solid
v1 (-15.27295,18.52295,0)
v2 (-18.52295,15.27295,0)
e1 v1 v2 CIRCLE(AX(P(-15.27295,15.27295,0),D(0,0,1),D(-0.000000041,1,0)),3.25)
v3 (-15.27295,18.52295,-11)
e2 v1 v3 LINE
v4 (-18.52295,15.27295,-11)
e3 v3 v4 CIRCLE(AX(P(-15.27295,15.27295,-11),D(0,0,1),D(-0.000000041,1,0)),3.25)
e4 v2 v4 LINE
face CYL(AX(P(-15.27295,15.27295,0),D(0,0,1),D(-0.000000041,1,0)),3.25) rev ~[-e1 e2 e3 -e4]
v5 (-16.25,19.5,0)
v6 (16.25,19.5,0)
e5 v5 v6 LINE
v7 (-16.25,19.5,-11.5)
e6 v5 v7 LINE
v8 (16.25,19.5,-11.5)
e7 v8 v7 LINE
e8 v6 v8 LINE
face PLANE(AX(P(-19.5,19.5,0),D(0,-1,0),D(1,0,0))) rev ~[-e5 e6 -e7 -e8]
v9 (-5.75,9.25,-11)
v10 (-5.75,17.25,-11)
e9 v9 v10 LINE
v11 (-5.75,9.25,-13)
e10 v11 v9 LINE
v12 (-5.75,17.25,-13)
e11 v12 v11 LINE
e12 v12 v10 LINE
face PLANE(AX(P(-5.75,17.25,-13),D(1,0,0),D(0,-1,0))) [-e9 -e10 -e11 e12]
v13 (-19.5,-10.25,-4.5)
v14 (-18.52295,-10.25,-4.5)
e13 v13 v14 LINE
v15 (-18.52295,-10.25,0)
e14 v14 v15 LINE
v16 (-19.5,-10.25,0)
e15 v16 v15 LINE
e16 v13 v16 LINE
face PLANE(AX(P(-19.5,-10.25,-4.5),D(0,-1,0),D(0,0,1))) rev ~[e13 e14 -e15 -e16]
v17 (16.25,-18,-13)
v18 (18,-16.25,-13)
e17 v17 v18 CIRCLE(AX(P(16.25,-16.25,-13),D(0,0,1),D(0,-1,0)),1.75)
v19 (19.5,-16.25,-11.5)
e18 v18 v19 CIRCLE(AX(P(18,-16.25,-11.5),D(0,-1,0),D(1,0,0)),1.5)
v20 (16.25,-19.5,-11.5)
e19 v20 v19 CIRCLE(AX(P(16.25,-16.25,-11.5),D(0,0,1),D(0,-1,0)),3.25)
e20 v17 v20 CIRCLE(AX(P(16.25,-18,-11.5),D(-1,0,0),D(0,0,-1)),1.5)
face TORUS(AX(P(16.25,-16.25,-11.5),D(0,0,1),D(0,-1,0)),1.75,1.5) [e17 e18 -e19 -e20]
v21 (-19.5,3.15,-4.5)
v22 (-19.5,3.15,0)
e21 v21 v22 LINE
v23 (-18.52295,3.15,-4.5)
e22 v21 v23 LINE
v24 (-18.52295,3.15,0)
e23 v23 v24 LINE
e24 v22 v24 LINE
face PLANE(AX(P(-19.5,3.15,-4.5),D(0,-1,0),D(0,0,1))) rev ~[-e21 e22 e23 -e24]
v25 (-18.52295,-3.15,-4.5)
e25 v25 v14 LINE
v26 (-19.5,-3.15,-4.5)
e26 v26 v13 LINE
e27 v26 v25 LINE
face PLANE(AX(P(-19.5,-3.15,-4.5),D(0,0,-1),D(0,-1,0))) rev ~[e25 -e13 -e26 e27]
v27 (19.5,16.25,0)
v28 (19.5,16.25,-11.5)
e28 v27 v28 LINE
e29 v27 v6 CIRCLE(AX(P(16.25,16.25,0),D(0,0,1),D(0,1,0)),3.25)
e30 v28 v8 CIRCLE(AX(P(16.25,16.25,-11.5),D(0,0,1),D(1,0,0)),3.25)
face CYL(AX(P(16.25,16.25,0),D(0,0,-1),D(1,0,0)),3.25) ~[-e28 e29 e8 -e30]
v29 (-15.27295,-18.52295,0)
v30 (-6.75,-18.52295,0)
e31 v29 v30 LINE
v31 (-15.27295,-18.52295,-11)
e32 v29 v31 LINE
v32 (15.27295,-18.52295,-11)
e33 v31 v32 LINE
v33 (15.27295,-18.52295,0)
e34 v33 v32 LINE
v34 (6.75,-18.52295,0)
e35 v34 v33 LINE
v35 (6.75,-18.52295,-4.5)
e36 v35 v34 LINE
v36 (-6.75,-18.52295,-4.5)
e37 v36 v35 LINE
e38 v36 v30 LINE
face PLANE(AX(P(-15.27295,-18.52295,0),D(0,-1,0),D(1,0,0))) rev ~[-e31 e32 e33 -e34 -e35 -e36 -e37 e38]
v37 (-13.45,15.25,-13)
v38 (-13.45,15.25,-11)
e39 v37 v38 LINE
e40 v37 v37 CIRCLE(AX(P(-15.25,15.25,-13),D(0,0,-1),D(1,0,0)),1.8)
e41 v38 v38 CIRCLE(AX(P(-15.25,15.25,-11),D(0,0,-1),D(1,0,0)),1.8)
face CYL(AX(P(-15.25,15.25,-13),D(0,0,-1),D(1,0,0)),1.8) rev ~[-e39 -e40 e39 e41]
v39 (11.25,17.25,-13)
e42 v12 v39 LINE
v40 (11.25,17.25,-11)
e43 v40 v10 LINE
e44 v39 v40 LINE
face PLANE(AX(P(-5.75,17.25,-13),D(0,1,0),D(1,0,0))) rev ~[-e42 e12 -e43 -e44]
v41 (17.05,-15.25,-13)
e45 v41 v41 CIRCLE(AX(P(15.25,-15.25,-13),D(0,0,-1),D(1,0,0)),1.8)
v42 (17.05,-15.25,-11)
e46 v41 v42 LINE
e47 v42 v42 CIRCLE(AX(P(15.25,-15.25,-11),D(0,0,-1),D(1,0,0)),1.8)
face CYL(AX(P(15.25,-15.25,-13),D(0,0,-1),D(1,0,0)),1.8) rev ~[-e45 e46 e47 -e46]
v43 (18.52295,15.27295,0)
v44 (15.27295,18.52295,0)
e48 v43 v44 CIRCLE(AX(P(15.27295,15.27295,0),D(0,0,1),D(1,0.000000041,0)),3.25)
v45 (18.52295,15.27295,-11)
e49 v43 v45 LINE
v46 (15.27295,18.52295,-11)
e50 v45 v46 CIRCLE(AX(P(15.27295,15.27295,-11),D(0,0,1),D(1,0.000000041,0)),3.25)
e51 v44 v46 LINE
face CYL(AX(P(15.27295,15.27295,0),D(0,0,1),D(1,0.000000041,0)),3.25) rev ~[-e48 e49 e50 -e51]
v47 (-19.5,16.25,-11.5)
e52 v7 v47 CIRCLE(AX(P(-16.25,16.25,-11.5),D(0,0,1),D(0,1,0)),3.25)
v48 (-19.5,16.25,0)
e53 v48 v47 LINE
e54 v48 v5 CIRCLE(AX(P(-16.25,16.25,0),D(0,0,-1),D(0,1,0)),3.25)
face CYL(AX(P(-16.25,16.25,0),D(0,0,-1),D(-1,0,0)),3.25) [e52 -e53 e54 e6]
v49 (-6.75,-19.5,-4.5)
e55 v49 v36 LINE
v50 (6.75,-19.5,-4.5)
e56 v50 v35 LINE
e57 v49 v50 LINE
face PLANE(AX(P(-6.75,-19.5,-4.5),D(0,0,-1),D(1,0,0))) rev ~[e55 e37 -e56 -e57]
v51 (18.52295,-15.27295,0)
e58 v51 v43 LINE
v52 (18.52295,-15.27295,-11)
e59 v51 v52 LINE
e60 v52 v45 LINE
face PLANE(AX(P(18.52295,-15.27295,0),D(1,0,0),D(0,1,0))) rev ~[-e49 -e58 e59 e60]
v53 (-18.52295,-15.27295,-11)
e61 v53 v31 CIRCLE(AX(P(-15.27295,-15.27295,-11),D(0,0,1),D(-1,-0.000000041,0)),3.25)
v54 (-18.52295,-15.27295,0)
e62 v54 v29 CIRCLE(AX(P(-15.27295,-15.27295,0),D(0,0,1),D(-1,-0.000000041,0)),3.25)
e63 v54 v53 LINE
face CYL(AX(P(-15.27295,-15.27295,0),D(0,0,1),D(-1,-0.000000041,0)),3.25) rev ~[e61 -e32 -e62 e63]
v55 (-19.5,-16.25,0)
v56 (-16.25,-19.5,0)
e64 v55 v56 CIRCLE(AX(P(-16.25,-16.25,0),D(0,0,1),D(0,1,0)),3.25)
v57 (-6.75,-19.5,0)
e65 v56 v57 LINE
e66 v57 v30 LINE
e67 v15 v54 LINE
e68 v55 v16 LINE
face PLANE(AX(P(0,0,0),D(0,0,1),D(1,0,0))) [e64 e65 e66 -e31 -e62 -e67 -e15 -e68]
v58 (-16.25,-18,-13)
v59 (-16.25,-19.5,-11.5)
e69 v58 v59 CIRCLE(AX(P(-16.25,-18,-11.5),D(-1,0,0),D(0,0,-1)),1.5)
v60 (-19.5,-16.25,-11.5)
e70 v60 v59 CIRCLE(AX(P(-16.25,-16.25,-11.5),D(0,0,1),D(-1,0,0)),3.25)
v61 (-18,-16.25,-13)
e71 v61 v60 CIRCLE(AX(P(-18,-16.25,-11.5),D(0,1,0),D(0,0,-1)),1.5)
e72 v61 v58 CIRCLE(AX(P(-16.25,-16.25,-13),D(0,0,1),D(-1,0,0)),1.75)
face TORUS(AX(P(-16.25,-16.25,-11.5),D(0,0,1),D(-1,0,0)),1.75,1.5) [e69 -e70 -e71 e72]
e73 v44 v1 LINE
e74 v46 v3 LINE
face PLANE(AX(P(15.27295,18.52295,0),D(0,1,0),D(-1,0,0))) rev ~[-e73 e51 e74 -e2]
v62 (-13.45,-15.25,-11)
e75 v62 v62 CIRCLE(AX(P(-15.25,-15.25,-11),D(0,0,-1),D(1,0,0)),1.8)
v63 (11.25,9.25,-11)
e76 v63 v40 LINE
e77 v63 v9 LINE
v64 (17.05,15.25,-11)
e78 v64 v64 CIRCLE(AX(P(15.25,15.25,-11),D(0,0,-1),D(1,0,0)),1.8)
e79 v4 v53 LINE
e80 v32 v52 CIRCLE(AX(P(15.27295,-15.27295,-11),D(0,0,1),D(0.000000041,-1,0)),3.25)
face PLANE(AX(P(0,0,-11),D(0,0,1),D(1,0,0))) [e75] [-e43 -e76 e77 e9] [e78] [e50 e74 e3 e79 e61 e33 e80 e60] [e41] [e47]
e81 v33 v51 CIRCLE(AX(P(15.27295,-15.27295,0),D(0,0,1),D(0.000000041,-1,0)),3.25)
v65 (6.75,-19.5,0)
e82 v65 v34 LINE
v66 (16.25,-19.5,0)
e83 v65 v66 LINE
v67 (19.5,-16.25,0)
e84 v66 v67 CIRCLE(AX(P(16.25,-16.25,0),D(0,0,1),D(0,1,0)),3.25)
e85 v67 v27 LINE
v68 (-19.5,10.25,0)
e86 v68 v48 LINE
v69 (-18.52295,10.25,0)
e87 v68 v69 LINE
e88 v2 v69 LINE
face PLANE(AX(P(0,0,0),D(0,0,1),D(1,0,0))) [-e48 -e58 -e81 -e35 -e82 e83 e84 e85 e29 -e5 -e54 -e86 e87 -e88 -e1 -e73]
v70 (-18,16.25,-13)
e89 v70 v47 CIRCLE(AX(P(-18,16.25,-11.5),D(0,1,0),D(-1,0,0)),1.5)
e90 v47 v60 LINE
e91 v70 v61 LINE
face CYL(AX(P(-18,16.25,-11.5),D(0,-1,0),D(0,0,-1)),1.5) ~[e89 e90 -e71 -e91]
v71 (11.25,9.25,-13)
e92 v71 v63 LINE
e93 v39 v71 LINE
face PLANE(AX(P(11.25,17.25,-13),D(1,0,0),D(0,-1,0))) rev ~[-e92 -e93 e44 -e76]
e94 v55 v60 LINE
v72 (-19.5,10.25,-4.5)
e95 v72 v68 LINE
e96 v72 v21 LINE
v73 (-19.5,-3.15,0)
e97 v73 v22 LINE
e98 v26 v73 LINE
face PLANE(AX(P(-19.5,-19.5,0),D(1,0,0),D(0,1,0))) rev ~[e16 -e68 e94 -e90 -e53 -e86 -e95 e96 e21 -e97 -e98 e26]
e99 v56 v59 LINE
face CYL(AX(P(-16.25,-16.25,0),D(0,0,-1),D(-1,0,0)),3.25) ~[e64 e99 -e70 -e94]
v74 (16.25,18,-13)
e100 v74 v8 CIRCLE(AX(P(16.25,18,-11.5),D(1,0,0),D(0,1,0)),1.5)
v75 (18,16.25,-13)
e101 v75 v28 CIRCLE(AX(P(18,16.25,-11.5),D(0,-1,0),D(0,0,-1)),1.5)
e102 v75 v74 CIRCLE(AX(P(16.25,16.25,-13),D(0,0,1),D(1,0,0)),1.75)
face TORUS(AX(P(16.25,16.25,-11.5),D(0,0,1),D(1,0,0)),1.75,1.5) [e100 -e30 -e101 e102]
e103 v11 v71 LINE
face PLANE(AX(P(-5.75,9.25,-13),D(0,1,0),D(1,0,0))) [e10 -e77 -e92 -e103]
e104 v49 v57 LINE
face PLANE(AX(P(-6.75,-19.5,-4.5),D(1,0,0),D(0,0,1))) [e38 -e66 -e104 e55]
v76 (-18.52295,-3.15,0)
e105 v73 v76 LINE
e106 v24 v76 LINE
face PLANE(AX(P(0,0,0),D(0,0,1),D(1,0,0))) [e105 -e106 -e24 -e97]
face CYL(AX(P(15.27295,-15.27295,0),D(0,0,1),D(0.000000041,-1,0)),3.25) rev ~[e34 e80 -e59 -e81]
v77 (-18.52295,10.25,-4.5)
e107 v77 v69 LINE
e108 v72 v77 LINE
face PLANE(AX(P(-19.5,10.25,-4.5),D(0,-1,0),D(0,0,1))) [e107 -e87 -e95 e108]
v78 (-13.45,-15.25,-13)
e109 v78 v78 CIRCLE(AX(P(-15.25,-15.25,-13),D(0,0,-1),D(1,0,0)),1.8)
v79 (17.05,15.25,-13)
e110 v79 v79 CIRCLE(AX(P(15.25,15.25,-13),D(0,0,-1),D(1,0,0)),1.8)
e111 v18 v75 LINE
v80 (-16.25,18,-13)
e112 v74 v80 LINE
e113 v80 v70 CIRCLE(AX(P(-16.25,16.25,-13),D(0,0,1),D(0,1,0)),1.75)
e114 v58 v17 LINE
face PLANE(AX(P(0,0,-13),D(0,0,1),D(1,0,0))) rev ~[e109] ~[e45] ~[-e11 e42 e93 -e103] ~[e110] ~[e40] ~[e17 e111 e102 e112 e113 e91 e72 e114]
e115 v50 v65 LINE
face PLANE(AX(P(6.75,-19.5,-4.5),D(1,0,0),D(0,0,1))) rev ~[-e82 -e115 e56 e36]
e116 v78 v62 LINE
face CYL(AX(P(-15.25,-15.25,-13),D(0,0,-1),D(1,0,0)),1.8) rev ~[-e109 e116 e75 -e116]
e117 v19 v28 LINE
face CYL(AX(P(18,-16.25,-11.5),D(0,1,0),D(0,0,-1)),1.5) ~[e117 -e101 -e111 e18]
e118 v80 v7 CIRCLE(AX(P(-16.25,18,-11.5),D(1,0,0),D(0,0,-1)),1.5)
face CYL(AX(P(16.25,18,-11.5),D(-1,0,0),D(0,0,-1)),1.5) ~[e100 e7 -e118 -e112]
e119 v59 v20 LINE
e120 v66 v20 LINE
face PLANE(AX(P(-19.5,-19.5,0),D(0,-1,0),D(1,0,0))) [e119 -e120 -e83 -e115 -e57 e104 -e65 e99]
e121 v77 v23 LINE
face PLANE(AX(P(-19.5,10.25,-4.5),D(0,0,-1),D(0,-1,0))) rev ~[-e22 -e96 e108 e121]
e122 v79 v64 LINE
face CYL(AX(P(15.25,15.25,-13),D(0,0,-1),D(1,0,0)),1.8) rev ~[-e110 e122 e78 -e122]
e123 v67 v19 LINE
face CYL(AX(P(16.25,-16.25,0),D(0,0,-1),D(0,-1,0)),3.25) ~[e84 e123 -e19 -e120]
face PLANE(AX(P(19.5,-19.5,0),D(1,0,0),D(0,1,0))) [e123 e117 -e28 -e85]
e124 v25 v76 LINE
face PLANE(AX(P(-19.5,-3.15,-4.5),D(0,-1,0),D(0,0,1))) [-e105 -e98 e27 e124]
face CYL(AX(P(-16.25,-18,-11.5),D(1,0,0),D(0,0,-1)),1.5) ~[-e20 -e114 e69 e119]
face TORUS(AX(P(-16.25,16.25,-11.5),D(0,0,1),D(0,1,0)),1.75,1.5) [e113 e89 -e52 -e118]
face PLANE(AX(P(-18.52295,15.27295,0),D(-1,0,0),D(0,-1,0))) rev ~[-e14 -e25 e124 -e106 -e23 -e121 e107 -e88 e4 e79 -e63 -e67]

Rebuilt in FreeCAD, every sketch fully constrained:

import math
import FreeCAD as App
import Part
import Sketcher

V = App.Vector


def edges_at(feature, points):
    """Names of the edges that pass closest to the given points."""
    edges = feature.Shape.Edges
    near = lambda p: min(range(len(edges)), key=lambda i: edges[i].distToShape(Part.Vertex(*p))[0])
    return sorted({f"Edge{near(p) + 1}" for p in points})

doc = App.newDocument("Part")
params = doc.addObject("Spreadsheet::Sheet", "Params")
for row, (alias, value) in enumerate([
    ("sketch1_width", "39 mm"),
    ("pad1_length", "13 mm"),
    ("fillet_radius", "3.25 mm"),
    ("sketch2_radius", "3.25 mm"),
    ("pocket1_length", "11 mm"),
    ("sketch3_diameter", "3.6 mm"),
    ("sketch3_width", "17 mm"),
    ("sketch3_height", "8 mm"),
    ("fillet2_radius", "1.5 mm"),
    ("sketch4_width", "7.1 mm"),
    ("sketch4_height", "4.5 mm"),
    ("pocket3_length", "0.97705 mm"),
    ("sketch5_width", "13.5 mm"),
    ("sketch5_height", "4.5 mm"),
    ("pocket4_length", "0.97705 mm"),
], start=1):
    params.set(f"A{row}", alias)
    params.set(f"B{row}", "=" + value)
    params.setAlias(f"B{row}", alias)

body = doc.addObject("PartDesign::Body", "Body")

# Sketch on XY plane
sketch1 = doc.addObject("Sketcher::SketchObject", "Sketch")
body.addObject(sketch1)
sketch1.AttachmentSupport = (doc.XY_Plane, [""])
sketch1.MapMode = "FlatFace"
sketch1.addGeometry([
    Part.LineSegment(V(-20, 20, 0), V(-20, -20, 0)),
    Part.LineSegment(V(-20, -20, 0), V(20, -20, 0)),
    Part.LineSegment(V(20, -20, 0), V(20, 20, 0)),
    Part.LineSegment(V(20, 20, 0), V(-20, 20, 0)),
], False)
sketch1.addConstraint([
    Sketcher.Constraint("Coincident", 0, 2, 1, 1),
    Sketcher.Constraint("Coincident", 1, 2, 2, 1),
    Sketcher.Constraint("Coincident", 2, 2, 3, 1),
    Sketcher.Constraint("Coincident", 3, 2, 0, 1),
    Sketcher.Constraint("Vertical", 0),
    Sketcher.Constraint("Horizontal", 1),
    Sketcher.Constraint("Vertical", 2),
    Sketcher.Constraint("Horizontal", 3),
    Sketcher.Constraint("Symmetric", 0, 2, 2, 2, -1, 1),
    Sketcher.Constraint("Equal", 3, 0),
    Sketcher.Constraint("DistanceX", 1, 1, 1, 2, 39.0),
])
sketch1.setExpression("Constraints[10]", "Params.sketch1_width")
pad1 = doc.addObject("PartDesign::Pad", "Pad")
body.addObject(pad1)
pad1.Profile = sketch1
pad1.setExpression("Length", "Params.pad1_length")
pad1.Reversed = True
doc.recompute()

fillet = doc.addObject("PartDesign::Fillet", "Fillet")
body.addObject(fillet)
fillet.Base = (pad1, edges_at(pad1, [
    (-19.5, -19.5, -6.5),
    (19.5, -19.5, -6.5),
    (19.5, 19.5, -6.5),
    (-19.5, 19.5, -6.5),
]))
fillet.setExpression("Radius", "Params.fillet_radius")

# Sketch on XY plane
sketch2 = doc.addObject("Sketcher::SketchObject", "Sketch001")
body.addObject(sketch2)
sketch2.AttachmentSupport = (doc.XY_Plane, [""])
sketch2.MapMode = "FlatFace"
sketch2.addGeometry([
    Part.ArcOfCircle(Part.Circle(V(-15.3, -15.3, 0), V(0, 0, 1), 3.3), math.radians(-180), math.radians(-90)),  # 0
    Part.LineSegment(V(-15.3, -18.5, 0), V(15.3, -18.5, 0)),  # 1
    Part.ArcOfCircle(Part.Circle(V(15.3, -15.3, 0), V(0, 0, 1), 3.3), math.radians(-90), math.radians(0)),  # 2
    Part.LineSegment(V(18.5, -15.3, 0), V(18.5, 15.3, 0)),  # 3
    Part.ArcOfCircle(Part.Circle(V(15.3, 15.3, 0), V(0, 0, 1), 3.3), math.radians(0), math.radians(90)),  # 4
    Part.LineSegment(V(15.3, 18.5, 0), V(-15.3, 18.5, 0)),  # 5
    Part.ArcOfCircle(Part.Circle(V(-15.3, 15.3, 0), V(0, 0, 1), 3.3), math.radians(90), math.radians(180)),  # 6
    Part.LineSegment(V(-18.5, 15.3, 0), V(-18.5, -15.3, 0)),  # 7
], False)
sketch2.addConstraint([
    Sketcher.Constraint("Tangent", 0, 2, 1, 1),
    Sketcher.Constraint("Tangent", 1, 2, 2, 1),
    Sketcher.Constraint("Tangent", 2, 2, 3, 1),
    Sketcher.Constraint("Tangent", 3, 2, 4, 1),
    Sketcher.Constraint("Tangent", 4, 2, 5, 1),
    Sketcher.Constraint("Tangent", 5, 2, 6, 1),
    Sketcher.Constraint("Tangent", 6, 2, 7, 1),
    Sketcher.Constraint("Tangent", 7, 2, 0, 1),
    Sketcher.Constraint("Horizontal", 1),
    Sketcher.Constraint("Vertical", 3),
    Sketcher.Constraint("Horizontal", 5),
    Sketcher.Constraint("Vertical", 7),
    Sketcher.Constraint("Equal", 0, 2),
    Sketcher.Constraint("Equal", 2, 4),
    Sketcher.Constraint("Equal", 4, 6),
    Sketcher.Constraint("Symmetric", 0, 3, 4, 3, -1, 1),
    Sketcher.Constraint("Equal", 5, 3),
    Sketcher.Constraint("Radius", 0, 3.25),
    Sketcher.Constraint("DistanceX", 1, 1, 1, 2, 30.5459),
])
sketch2.setExpression("Constraints[17]", "Params.sketch2_radius")
pocket1 = doc.addObject("PartDesign::Pocket", "Pocket")
body.addObject(pocket1)
pocket1.Profile = sketch2
pocket1.setExpression("Length", "Params.pocket1_length")

# Sketch on XY plane
sketch3 = doc.addObject("Sketcher::SketchObject", "Sketch002")
body.addObject(sketch3)
sketch3.AttachmentSupport = (doc.XY_Plane, [""])
sketch3.MapMode = "FlatFace"
sketch3.AttachmentOffset = App.Placement(V(0, 0, -13), App.Rotation())
sketch3.addGeometry([
    Part.Circle(V(-15.2, -15.2, 0), V(0, 0, 1), 1.8),  # 0
    Part.Circle(V(15.2, -15.2, 0), V(0, 0, 1), 1.8),  # 1
    Part.Circle(V(-15.2, 15.2, 0), V(0, 0, 1), 1.8),  # 2
    Part.Circle(V(15.2, 15.2, 0), V(0, 0, 1), 1.8),  # 3
    Part.LineSegment(V(-5.8, 9.2, 0), V(-5.8, 17.2, 0)),  # 4
    Part.LineSegment(V(-5.8, 17.2, 0), V(11.2, 17.2, 0)),  # 5
    Part.LineSegment(V(11.2, 17.2, 0), V(11.2, 9.2, 0)),  # 6
    Part.LineSegment(V(11.2, 9.2, 0), V(-5.8, 9.2, 0)),  # 7
], False)
sketch3.addConstraint([
    Sketcher.Constraint("Coincident", 4, 2, 5, 1),
    Sketcher.Constraint("Coincident", 5, 2, 6, 1),
    Sketcher.Constraint("Coincident", 6, 2, 7, 1),
    Sketcher.Constraint("Coincident", 7, 2, 4, 1),
    Sketcher.Constraint("Vertical", 4),
    Sketcher.Constraint("Horizontal", 5),
    Sketcher.Constraint("Vertical", 6),
    Sketcher.Constraint("Horizontal", 7),
    Sketcher.Constraint("Equal", 0, 1),
    Sketcher.Constraint("Equal", 1, 2),
    Sketcher.Constraint("Equal", 2, 3),
    Sketcher.Constraint("Symmetric", 1, 3, 2, 3, -1, 1),
    Sketcher.Constraint("Symmetric", 0, 3, 3, 3, -1, 1),
    Sketcher.Constraint("Symmetric", 0, 3, 1, 3, -2),
    Sketcher.Constraint("Diameter", 0, 3.6),
    Sketcher.Constraint("DistanceX", 5, 1, 5, 2, 17.0),
    Sketcher.Constraint("DistanceY", 4, 1, 4, 2, 8.0),
    Sketcher.Constraint("DistanceY", 2, 3, 4, 2, 2.0),
    Sketcher.Constraint("DistanceX", 4, 2, 3, 3, 21.0),
    Sketcher.Constraint("DistanceX", 0, 3, 1, 3, 30.5),
    Sketcher.Constraint("DistanceY", 0, 3, 2, 3, 30.5),
])
sketch3.setExpression("Constraints[14]", "Params.sketch3_diameter")
sketch3.setExpression("Constraints[15]", "Params.sketch3_width")
sketch3.setExpression("Constraints[16]", "Params.sketch3_height")
pocket2 = doc.addObject("PartDesign::Pocket", "Pocket001")
body.addObject(pocket2)
pocket2.Profile = sketch3
pocket2.Type = "ThroughAll"
pocket2.Reversed = True
doc.recompute()

fillet2 = doc.addObject("PartDesign::Fillet", "Fillet001")
body.addObject(fillet2)
fillet2.Base = (pocket2, edges_at(pocket2, [(0, -19.5, -13)]))
fillet2.setExpression("Radius", "Params.fillet2_radius")

# Sketch on YZ plane
sketch4 = doc.addObject("Sketcher::SketchObject", "Sketch003")
body.addObject(sketch4)
sketch4.AttachmentSupport = (doc.YZ_Plane, [""])
sketch4.MapMode = "FlatFace"
sketch4.AttachmentOffset = App.Placement(V(0, 0, -19.5), App.Rotation())
sketch4.addGeometry([
    Part.LineSegment(V(-3.1, 0, 0), V(-3.1, -4.5, 0)),  # 0
    Part.LineSegment(V(-3.1, -4.5, 0), V(-10.2, -4.5, 0)),  # 1
    Part.LineSegment(V(-10.2, -4.5, 0), V(-10.2, 0, 0)),  # 2
    Part.LineSegment(V(-10.2, 0, 0), V(-3.1, 0, 0)),  # 3
    Part.LineSegment(V(10.2, 0, 0), V(10.2, -4.5, 0)),  # 4
    Part.LineSegment(V(10.2, -4.5, 0), V(3.1, -4.5, 0)),  # 5
    Part.LineSegment(V(3.1, -4.5, 0), V(3.1, 0, 0)),  # 6
    Part.LineSegment(V(3.1, 0, 0), V(10.2, 0, 0)),  # 7
], False)
sketch4.addConstraint([
    Sketcher.Constraint("Coincident", 0, 2, 1, 1),
    Sketcher.Constraint("Coincident", 1, 2, 2, 1),
    Sketcher.Constraint("Coincident", 2, 2, 3, 1),
    Sketcher.Constraint("Coincident", 3, 2, 0, 1),
    Sketcher.Constraint("Coincident", 4, 2, 5, 1),
    Sketcher.Constraint("Coincident", 5, 2, 6, 1),
    Sketcher.Constraint("Coincident", 6, 2, 7, 1),
    Sketcher.Constraint("Coincident", 7, 2, 4, 1),
    Sketcher.Constraint("Vertical", 0),
    Sketcher.Constraint("Horizontal", 1),
    Sketcher.Constraint("Vertical", 2),
    Sketcher.Constraint("Horizontal", 3),
    Sketcher.Constraint("Vertical", 4),
    Sketcher.Constraint("Horizontal", 5),
    Sketcher.Constraint("Vertical", 6),
    Sketcher.Constraint("Horizontal", 7),
    Sketcher.Constraint("Symmetric", 3, 2, 6, 2, -1, 1),
    Sketcher.Constraint("Symmetric", 1, 2, 4, 2, -2),
    Sketcher.Constraint("PointOnObject", 2, 2, -1),
    Sketcher.Constraint("DistanceX", 1, 2, 1, 1, 7.1),
    Sketcher.Constraint("DistanceY", 0, 2, 0, 1, 4.5),
    Sketcher.Constraint("DistanceX", 0, 2, 4, 2, 13.4),
])
sketch4.setExpression("Constraints[19]", "Params.sketch4_width")
sketch4.setExpression("Constraints[20]", "Params.sketch4_height")
pocket3 = doc.addObject("PartDesign::Pocket", "Pocket002")
body.addObject(pocket3)
pocket3.Profile = sketch4
pocket3.setExpression("Length", "Params.pocket3_length")
pocket3.Reversed = True

# Sketch on XZ plane
sketch5 = doc.addObject("Sketcher::SketchObject", "Sketch004")
body.addObject(sketch5)
sketch5.AttachmentSupport = (doc.XZ_Plane, [""])
sketch5.MapMode = "FlatFace"
sketch5.AttachmentOffset = App.Placement(V(0, 0, 19.5), App.Rotation())
sketch5.addGeometry([
    Part.LineSegment(V(-6.8, 0, 0), V(-6.8, -4.5, 0)),
    Part.LineSegment(V(-6.8, -4.5, 0), V(6.8, -4.5, 0)),
    Part.LineSegment(V(6.8, -4.5, 0), V(6.8, 0, 0)),
    Part.LineSegment(V(6.8, 0, 0), V(-6.8, 0, 0)),
], False)
sketch5.addConstraint([
    Sketcher.Constraint("Coincident", 0, 2, 1, 1),
    Sketcher.Constraint("Coincident", 1, 2, 2, 1),
    Sketcher.Constraint("Coincident", 2, 2, 3, 1),
    Sketcher.Constraint("Coincident", 3, 2, 0, 1),
    Sketcher.Constraint("Vertical", 0),
    Sketcher.Constraint("Horizontal", 1),
    Sketcher.Constraint("Vertical", 2),
    Sketcher.Constraint("Horizontal", 3),
    Sketcher.Constraint("Symmetric", 2, 2, 3, 2, -1, 1),
    Sketcher.Constraint("DistanceX", 1, 1, 1, 2, 13.5),
    Sketcher.Constraint("DistanceY", 0, 2, 0, 1, 4.5),
])
sketch5.setExpression("Constraints[9]", "Params.sketch5_width")
sketch5.setExpression("Constraints[10]", "Params.sketch5_height")
pocket4 = doc.addObject("PartDesign::Pocket", "Pocket003")
body.addObject(pocket4)
pocket4.Profile = sketch5
pocket4.setExpression("Length", "Params.pocket4_length")

doc.recompute()
